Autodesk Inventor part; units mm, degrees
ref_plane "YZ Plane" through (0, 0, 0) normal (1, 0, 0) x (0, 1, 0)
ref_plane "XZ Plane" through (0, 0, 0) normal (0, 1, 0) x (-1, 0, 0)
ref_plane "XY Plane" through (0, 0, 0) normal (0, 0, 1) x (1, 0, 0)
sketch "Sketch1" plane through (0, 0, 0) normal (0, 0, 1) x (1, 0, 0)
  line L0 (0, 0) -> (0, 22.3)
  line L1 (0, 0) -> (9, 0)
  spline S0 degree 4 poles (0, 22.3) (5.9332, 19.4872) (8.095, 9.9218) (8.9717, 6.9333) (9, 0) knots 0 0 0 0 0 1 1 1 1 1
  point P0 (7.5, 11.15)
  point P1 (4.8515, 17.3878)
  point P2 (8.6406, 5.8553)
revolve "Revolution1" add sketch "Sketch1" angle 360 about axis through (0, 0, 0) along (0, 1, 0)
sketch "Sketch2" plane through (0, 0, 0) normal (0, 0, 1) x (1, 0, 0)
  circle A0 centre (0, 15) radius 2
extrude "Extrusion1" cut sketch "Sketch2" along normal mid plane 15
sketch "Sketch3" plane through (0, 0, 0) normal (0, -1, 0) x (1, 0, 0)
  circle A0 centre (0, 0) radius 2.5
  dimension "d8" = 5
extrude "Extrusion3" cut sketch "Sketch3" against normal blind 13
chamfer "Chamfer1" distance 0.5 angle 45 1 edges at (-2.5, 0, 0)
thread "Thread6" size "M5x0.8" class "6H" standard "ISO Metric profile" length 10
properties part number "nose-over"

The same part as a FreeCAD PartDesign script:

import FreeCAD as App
import Part
import Sketcher
from FreeCAD import Vector
Q = App.Units.Quantity


def edges_at(feature, points):
    """Names of the edges that pass closest to the given points."""
    edges = feature.Shape.Edges
    near = lambda p: min(range(len(edges)), key=lambda i: edges[i].distToShape(Part.Vertex(*p))[0])
    return sorted({f"Edge{near(p) + 1}" for p in points})

doc = App.newDocument("Part")
params = doc.addObject("Spreadsheet::Sheet", "Params")
for row, (alias, value) in enumerate([
    ("revolution_angle", "360 deg"),
    ("sketch2_diameter", "4 mm"),
    ("pocket1_length", "15 mm"),
    ("sketch3_diameter", "5 mm"),
    ("pocket2_length", "13 mm"),
    ("chamfer_size", "0.5 mm"),
], start=1):
    params.set(f"A{row}", alias)
    params.set(f"B{row}", "=" + value)
    params.setAlias(f"B{row}", alias)

body = doc.addObject("PartDesign::Body", "Body")

sketch1 = doc.addObject("Sketcher::SketchObject", "Sketch")
body.addObject(sketch1)
sketch1.AttachmentSupport = (doc.XY_Plane, [""])
sketch1.MapMode = "FlatFace"
sketch1.addGeometry([
    Part.LineSegment(Vector(0, 22.3, 0), Vector(0, 0, 0)),
    Part.LineSegment(Vector(0, 0, 0), Vector(9, 0, 0)),
    Part.BSplineCurve([Vector(0, 22.3, 0), Vector(5.9332, 19.4872, 0), Vector(8.095, 9.9218, 0), Vector(8.9717, 6.9333, 0), Vector(9, 0, 0)], [5, 5], [0, 1], False, 4, [1, 1, 1, 1, 1], False),
], False)
sketch1.addConstraint([
    Sketcher.Constraint("Block", 2),
    Sketcher.Constraint("Coincident", 0, 2, 1, 1),
    Sketcher.Constraint("Coincident", 1, 2, 2, 2),
    Sketcher.Constraint("Coincident", 2, 1, 0, 1),
    Sketcher.Constraint("Vertical", 0),
    Sketcher.Constraint("Horizontal", 1),
])
revolution = doc.addObject("PartDesign::Revolution", "Revolution")
body.addObject(revolution)
revolution.Profile = sketch1
revolution.ReferenceAxis = (sketch1, ["V_Axis"])
revolution.setExpression("Angle", "Params.revolution_angle")

sketch2 = doc.addObject("Sketcher::SketchObject", "Sketch001")
body.addObject(sketch2)
sketch2.AttachmentSupport = (doc.XY_Plane, [""])
sketch2.MapMode = "FlatFace"
sketch2.addGeometry(Part.Circle(Vector(0, 15, 0), Vector(0, 0, 1), 2), False)
sketch2.addConstraint([
    Sketcher.Constraint("PointOnObject", 0, 3, -2),
    Sketcher.Constraint("Diameter", 0, Q("4 mm")),
    Sketcher.Constraint("DistanceY", -1, 1, 0, 3, Q("15 mm")),
])
sketch2.setExpression("Constraints[1]", "Params.sketch2_diameter")
pocket1 = doc.addObject("PartDesign::Pocket", "Pocket")
body.addObject(pocket1)
pocket1.Profile = sketch2
pocket1.setExpression("Length", "Params.pocket1_length")
pocket1.Midplane = True

sketch3 = doc.addObject("Sketcher::SketchObject", "Sketch002")
body.addObject(sketch3)
sketch3.AttachmentSupport = (doc.XZ_Plane, [""])
sketch3.MapMode = "FlatFace"
sketch3.addGeometry(Part.Circle(Vector(0, 0, 0), Vector(0, 0, 1), 2.5), False)
sketch3.addConstraint([
    Sketcher.Constraint("Coincident", 0, 3, -1, 1),
    Sketcher.Constraint("Diameter", 0, Q("5 mm")),
])
sketch3.setExpression("Constraints[1]", "Params.sketch3_diameter")
pocket2 = doc.addObject("PartDesign::Pocket", "Pocket001")
body.addObject(pocket2)
pocket2.Profile = sketch3
pocket2.setExpression("Length", "Params.pocket2_length")
doc.recompute()

chamfer = doc.addObject("PartDesign::Chamfer", "Chamfer")
body.addObject(chamfer)
chamfer.Base = (pocket2, edges_at(pocket2, [(-2.5, 0, 0)]))
chamfer.setExpression("Size", "Params.chamfer_size")

doc.recompute()
